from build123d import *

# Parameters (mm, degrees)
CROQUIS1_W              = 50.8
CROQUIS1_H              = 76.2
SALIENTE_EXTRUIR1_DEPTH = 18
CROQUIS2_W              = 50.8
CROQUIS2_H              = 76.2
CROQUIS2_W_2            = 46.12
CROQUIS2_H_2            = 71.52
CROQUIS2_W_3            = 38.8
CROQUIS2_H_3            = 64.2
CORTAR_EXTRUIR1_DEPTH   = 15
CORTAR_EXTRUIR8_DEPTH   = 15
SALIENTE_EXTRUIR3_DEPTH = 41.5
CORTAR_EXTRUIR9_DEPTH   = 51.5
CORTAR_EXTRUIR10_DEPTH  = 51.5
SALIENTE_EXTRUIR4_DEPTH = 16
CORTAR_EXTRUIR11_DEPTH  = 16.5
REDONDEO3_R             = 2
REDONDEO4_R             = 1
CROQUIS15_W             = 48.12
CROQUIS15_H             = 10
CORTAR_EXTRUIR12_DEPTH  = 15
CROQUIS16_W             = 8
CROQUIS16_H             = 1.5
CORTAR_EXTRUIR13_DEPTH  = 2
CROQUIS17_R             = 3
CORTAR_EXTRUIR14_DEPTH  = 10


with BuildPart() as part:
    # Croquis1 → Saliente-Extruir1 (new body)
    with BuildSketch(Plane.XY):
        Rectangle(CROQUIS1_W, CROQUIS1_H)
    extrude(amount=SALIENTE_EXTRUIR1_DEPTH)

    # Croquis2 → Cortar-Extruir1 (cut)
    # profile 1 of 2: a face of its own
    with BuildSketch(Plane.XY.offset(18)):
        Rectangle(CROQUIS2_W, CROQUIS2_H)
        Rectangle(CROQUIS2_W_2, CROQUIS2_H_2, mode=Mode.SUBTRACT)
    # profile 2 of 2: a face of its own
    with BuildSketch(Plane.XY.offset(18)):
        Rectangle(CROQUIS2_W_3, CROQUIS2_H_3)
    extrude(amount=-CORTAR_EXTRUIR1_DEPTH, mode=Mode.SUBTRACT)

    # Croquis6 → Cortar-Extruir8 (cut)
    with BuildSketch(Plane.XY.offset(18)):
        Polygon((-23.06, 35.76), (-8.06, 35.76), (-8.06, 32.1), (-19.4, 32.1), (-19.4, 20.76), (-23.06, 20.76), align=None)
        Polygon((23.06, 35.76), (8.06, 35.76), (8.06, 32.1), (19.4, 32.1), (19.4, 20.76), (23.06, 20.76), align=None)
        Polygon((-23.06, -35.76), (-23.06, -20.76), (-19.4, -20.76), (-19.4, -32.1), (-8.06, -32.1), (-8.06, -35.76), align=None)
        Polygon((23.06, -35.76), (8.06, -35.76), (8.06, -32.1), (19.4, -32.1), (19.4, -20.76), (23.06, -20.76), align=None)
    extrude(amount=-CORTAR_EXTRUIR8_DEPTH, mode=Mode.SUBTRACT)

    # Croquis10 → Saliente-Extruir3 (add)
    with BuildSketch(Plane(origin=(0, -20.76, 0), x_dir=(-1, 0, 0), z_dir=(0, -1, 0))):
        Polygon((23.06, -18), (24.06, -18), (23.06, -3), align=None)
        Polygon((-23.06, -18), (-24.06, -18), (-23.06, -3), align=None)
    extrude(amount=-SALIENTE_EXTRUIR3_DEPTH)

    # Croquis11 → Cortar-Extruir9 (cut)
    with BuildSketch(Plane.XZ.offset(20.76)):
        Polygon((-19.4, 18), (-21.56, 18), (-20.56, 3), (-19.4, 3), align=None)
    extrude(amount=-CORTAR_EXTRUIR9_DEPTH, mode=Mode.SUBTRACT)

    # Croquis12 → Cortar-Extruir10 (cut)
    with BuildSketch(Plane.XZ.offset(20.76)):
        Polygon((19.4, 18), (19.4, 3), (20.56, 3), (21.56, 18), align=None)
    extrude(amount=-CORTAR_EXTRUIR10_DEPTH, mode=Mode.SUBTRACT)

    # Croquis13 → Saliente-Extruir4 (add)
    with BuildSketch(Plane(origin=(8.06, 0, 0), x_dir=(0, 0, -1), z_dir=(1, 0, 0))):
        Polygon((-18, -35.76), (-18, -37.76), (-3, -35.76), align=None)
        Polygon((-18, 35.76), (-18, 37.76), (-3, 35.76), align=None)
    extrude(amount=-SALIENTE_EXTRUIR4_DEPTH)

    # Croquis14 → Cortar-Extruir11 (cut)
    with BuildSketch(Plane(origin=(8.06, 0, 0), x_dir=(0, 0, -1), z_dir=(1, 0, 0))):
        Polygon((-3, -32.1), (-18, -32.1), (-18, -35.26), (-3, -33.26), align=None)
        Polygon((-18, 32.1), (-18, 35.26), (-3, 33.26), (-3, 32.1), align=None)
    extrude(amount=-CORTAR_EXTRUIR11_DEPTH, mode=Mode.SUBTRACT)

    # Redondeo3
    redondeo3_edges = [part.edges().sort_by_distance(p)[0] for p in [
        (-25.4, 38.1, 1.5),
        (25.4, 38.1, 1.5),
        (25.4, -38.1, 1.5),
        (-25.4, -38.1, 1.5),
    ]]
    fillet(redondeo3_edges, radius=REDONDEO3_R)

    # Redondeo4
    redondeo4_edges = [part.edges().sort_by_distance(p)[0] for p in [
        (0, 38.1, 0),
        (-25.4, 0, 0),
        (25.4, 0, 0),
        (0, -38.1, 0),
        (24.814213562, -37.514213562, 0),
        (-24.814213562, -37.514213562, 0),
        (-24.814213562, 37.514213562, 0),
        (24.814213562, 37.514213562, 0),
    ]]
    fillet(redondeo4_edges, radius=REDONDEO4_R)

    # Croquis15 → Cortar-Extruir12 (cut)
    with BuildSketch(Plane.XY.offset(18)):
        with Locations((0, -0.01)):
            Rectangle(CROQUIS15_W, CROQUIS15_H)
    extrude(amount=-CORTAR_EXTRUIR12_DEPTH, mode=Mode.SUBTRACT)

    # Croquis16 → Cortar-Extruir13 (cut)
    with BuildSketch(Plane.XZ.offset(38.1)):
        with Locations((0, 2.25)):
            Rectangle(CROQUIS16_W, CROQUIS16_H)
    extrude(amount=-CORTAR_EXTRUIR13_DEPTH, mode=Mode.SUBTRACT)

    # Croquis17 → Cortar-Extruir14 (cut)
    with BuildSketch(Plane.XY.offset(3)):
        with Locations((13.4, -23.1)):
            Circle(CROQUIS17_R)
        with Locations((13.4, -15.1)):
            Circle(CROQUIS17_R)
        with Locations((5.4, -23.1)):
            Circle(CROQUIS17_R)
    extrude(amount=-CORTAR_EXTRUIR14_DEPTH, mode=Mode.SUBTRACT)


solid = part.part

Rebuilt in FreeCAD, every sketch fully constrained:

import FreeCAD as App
import Part
import Sketcher
from FreeCAD import Vector


def edges_at(feature, points):
    """Names of the edges that pass closest to the given points."""
    edges = feature.Shape.Edges
    near = lambda p: min(range(len(edges)), key=lambda i: edges[i].distToShape(Part.Vertex(*p))[0])
    return sorted({f"Edge{near(p) + 1}" for p in points})


def add_polygon(sketch, points):
    """Adds a closed chain of lines whose ends are joined by coincident constraints."""
    first, n = sketch.GeometryCount, len(points)
    for a, b in zip(points, points[1:] + points[:1]):
        sketch.addGeometry(Part.LineSegment(App.Vector(*a, 0), App.Vector(*b, 0)), False)
    for i in range(n):
        sketch.addConstraint(Sketcher.Constraint("Coincident", first + i, 2, first + (i + 1) % n, 1))

doc = App.newDocument("Part")
body = doc.addObject("PartDesign::Body", "Body")

# Sketch on XY plane
sketch1 = body.newObject("Sketcher::SketchObject", "Sketch")
sketch1.AttachmentSupport = (doc.getObject("XY_Plane"), [""])
sketch1.MapMode = "FlatFace"
add_polygon(sketch1, [(-25, 38), (-25, -38), (25, -38), (25, 38)])  # lines 0-3
sketch1.addConstraint([
    Sketcher.Constraint("Vertical", 0),
    Sketcher.Constraint("Horizontal", 1),
    Sketcher.Constraint("Vertical", 2),
    Sketcher.Constraint("Horizontal", 3),
    Sketcher.Constraint("Symmetric", 0, 2, 2, 2, -1, 1),
    Sketcher.Constraint("DistanceX", 1, 1, 1, 2, 50.8),
    Sketcher.Constraint("DistanceY", 0, 2, 0, 1, 76.2),
])
pad1 = body.newObject("PartDesign::Pad", "Pad")
pad1.Profile = sketch1
pad1.Length = 18

# Sketch on XY plane
sketch2 = body.newObject("Sketcher::SketchObject", "Sketch001")
sketch2.AttachmentSupport = (doc.getObject("XY_Plane"), [""])
sketch2.MapMode = "FlatFace"
sketch2.AttachmentOffset = App.Placement(Vector(0, 0, 18), App.Rotation())
add_polygon(sketch2, [(-25, 38), (-25, -38), (25, -38), (25, 38)])  # lines 0-3
add_polygon(sketch2, [(23, -36), (-23, -36), (-23, 36), (23, 36)])  # lines 4-7
add_polygon(sketch2, [(-19, 32), (-19, -32), (19, -32), (19, 32)])  # lines 8-11
sketch2.addConstraint([
    Sketcher.Constraint("Vertical", 0),
    Sketcher.Constraint("Horizontal", 1),
    Sketcher.Constraint("Vertical", 2),
    Sketcher.Constraint("Horizontal", 3),
    Sketcher.Constraint("Horizontal", 4),
    Sketcher.Constraint("Vertical", 5),
    Sketcher.Constraint("Horizontal", 6),
    Sketcher.Constraint("Vertical", 7),
    Sketcher.Constraint("Vertical", 8),
    Sketcher.Constraint("Horizontal", 9),
    Sketcher.Constraint("Vertical", 10),
    Sketcher.Constraint("Horizontal", 11),
    Sketcher.Constraint("Symmetric", 0, 2, 2, 2, -1, 1),
    Sketcher.Constraint("Symmetric", 4, 2, 6, 2, -1, 1),
    Sketcher.Constraint("Symmetric", 8, 2, 10, 2, -1, 1),
    Sketcher.Constraint("DistanceX", 1, 1, 1, 2, 50.8),
    Sketcher.Constraint("DistanceX", 9, 1, 9, 2, 38.8),
    Sketcher.Constraint("DistanceY", 0, 2, 0, 1, 76.2),
    Sketcher.Constraint("DistanceY", 8, 2, 8, 1, 64.2),
    Sketcher.Constraint("DistanceX", 4, 2, 4, 1, 46.12),
    Sketcher.Constraint("DistanceY", 5, 1, 5, 2, 71.52),
])
pocket1 = body.newObject("PartDesign::Pocket", "Pocket")
pocket1.Profile = sketch2
pocket1.Length = 15

# Sketch on XY plane
sketch3 = body.newObject("Sketcher::SketchObject", "Sketch002")
sketch3.AttachmentSupport = (doc.getObject("XY_Plane"), [""])
sketch3.MapMode = "FlatFace"
sketch3.AttachmentOffset = App.Placement(Vector(0, 0, 18), App.Rotation())
add_polygon(sketch3, [(-8.1, 35.8), (-23.1, 35.8), (-23.1, 20.8), (-19.4, 20.8), (-19.4, 32.1), (-8.1, 32.1)])  # lines 0-5
add_polygon(sketch3, [(23.1, 35.8), (8.1, 35.8), (8.1, 32.1), (19.4, 32.1), (19.4, 20.8), (23.1, 20.8)])  # lines 6-11
add_polygon(sketch3, [(-23.1, -20.8), (-23.1, -35.8), (-8.1, -35.8), (-8.1, -32.1), (-19.4, -32.1), (-19.4, -20.8)])  # lines 12-17
add_polygon(sketch3, [(8.1, -35.8), (23.1, -35.8), (23.1, -20.8), (19.4, -20.8), (19.4, -32.1), (8.1, -32.1)])  # lines 18-23
sketch3.addConstraint([
    Sketcher.Constraint("Horizontal", 0),
    Sketcher.Constraint("Vertical", 1),
    Sketcher.Constraint("Horizontal", 2),
    Sketcher.Constraint("Vertical", 3),
    Sketcher.Constraint("Horizontal", 4),
    Sketcher.Constraint("Vertical", 5),
    Sketcher.Constraint("Horizontal", 6),
    Sketcher.Constraint("Vertical", 7),
    Sketcher.Constraint("Horizontal", 8),
    Sketcher.Constraint("Vertical", 9),
    Sketcher.Constraint("Horizontal", 10),
    Sketcher.Constraint("Vertical", 11),
    Sketcher.Constraint("Vertical", 12),
    Sketcher.Constraint("Horizontal", 13),
    Sketcher.Constraint("Vertical", 14),
    Sketcher.Constraint("Horizontal", 15),
    Sketcher.Constraint("Vertical", 16),
    Sketcher.Constraint("Horizontal", 17),
    Sketcher.Constraint("Horizontal", 18),
    Sketcher.Constraint("Vertical", 19),
    Sketcher.Constraint("Horizontal", 20),
    Sketcher.Constraint("Vertical", 21),
    Sketcher.Constraint("Horizontal", 22),
    Sketcher.Constraint("Vertical", 23),
    Sketcher.Constraint("Symmetric", 11, 2, 12, 2, -1, 1),
    Sketcher.Constraint("Symmetric", 7, 2, 14, 2, -1, 1),
    Sketcher.Constraint("Symmetric", 9, 2, 16, 2, -1, 1),
    Sketcher.Constraint("Symmetric", 0, 2, 18, 2, -1, 1),
    Sketcher.Constraint("Symmetric", 2, 2, 20, 2, -1, 1),
    Sketcher.Constraint("Symmetric", 4, 2, 22, 2, -1, 1),
    Sketcher.Constraint("Symmetric", 5, 2, 6, 2, -2),
    Sketcher.Constraint("Symmetric", 3, 2, 8, 2, -2),
    Sketcher.Constraint("Symmetric", 1, 2, 10, 2, -2),
    Sketcher.Constraint("Equal", 18, 1),
    Sketcher.Constraint("Equal", 22, 3),
    Sketcher.Constraint("DistanceX", 0, 2, 0, 1, 15.0),
    Sketcher.Constraint("DistanceX", 2, 1, 2, 2, 3.66),
    Sketcher.Constraint("DistanceX", 2, 2, -1, 1, 19.4),
    Sketcher.Constraint("DistanceY", -1, 1, 3, 2, 32.1),
])
pocket2 = body.newObject("PartDesign::Pocket", "Pocket001")
pocket2.Profile = sketch3
pocket2.Length = 15

# Sketch on XZ plane
sketch4 = body.newObject("Sketcher::SketchObject", "Sketch003")
sketch4.AttachmentSupport = (doc.getObject("XZ_Plane"), [""])
sketch4.MapMode = "FlatFace"
sketch4.AttachmentOffset = App.Placement(Vector(0, 0, 20.76), App.Rotation())
add_polygon(sketch4, [(-23.1, 18), (-24.1, 18), (-23.1, 3)])  # lines 0-2
add_polygon(sketch4, [(24.1, 18), (23.1, 18), (23.1, 3)])  # lines 3-5
sketch4.addConstraint([
    Sketcher.Constraint("Horizontal", 0),
    Sketcher.Constraint("Vertical", 2),
    Sketcher.Constraint("Horizontal", 3),
    Sketcher.Constraint("Vertical", 4),
    Sketcher.Constraint("Symmetric", 2, 2, 3, 2, -2),
    Sketcher.Constraint("Horizontal", 1, 2, 4, 2),
    Sketcher.Constraint("Equal", 0, 3),
    Sketcher.Constraint("DistanceX", 0, 2, 0, 1, 1.0),
    Sketcher.Constraint("DistanceY", 2, 1, 2, 2, 15.0),
    Sketcher.Constraint("DistanceY", -1, 1, 0, 2, 18.0),
    Sketcher.Constraint("DistanceX", 0, 2, -1, 1, 24.06),
])
pad2 = body.newObject("PartDesign::Pad", "Pad001")
pad2.Profile = sketch4
pad2.Length = 41.5
pad2.Reversed = True

# Sketch on XZ plane
sketch5 = body.newObject("Sketcher::SketchObject", "Sketch004")
sketch5.AttachmentSupport = (doc.getObject("XZ_Plane"), [""])
sketch5.MapMode = "FlatFace"
sketch5.AttachmentOffset = App.Placement(Vector(0, 0, 20.76), App.Rotation())
add_polygon(sketch5, [(-19.4, 18), (-21.6, 18), (-20.6, 3), (-19.4, 3)])  # lines 0-3
sketch5.addConstraint([
    Sketcher.Constraint("Horizontal", 0),
    Sketcher.Constraint("Horizontal", 2),
    Sketcher.Constraint("Vertical", 3),
    Sketcher.Constraint("DistanceY", 3, 1, 3, 2, 15.0),
    Sketcher.Constraint("DistanceY", -1, 1, 0, 2, 18.0),
    Sketcher.Constraint("DistanceX", 0, 2, 1, 2, 1.0),
    Sketcher.Constraint("DistanceX", 0, 2, 0, 1, 2.16),
    Sketcher.Constraint("DistanceX", 2, 2, -1, 1, 19.4),
])
pocket3 = body.newObject("PartDesign::Pocket", "Pocket002")
pocket3.Profile = sketch5
pocket3.Length = 51.5

# Sketch on XZ plane
sketch6 = body.newObject("Sketcher::SketchObject", "Sketch005")
sketch6.AttachmentSupport = (doc.getObject("XZ_Plane"), [""])
sketch6.MapMode = "FlatFace"
sketch6.AttachmentOffset = App.Placement(Vector(0, 0, 20.76), App.Rotation())
add_polygon(sketch6, [(19.4, 18), (19.4, 3), (20.6, 3), (21.6, 18)])  # lines 0-3
sketch6.addConstraint([
    Sketcher.Constraint("Vertical", 0),
    Sketcher.Constraint("Horizontal", 1),
    Sketcher.Constraint("Horizontal", 3),
    Sketcher.Constraint("DistanceY", 0, 2, 0, 1, 15.0),
    Sketcher.Constraint("DistanceY", -1, 1, 0, 2, 3.0),
    Sketcher.Constraint("DistanceX", 1, 2, 2, 2, 1.0),
    Sketcher.Constraint("DistanceX", 1, 1, 1, 2, 1.16),
    Sketcher.Constraint("DistanceX", -1, 1, 0, 2, 19.4),
])
pocket4 = body.newObject("PartDesign::Pocket", "Pocket003")
pocket4.Profile = sketch6
pocket4.Length = 51.5

# Sketch on YZ plane
sketch7 = body.newObject("Sketcher::SketchObject", "Sketch006")
sketch7.AttachmentSupport = (doc.getObject("YZ_Plane"), [""])
sketch7.MapMode = "FlatFace"
sketch7.AttachmentOffset = App.Placement(Vector(0, 0, 8.06), App.Rotation())
add_polygon(sketch7, [(-35.8, 18), (-37.8, 18), (-35.8, 3)])  # lines 0-2
add_polygon(sketch7, [(37.8, 18), (35.8, 18), (35.8, 3)])  # lines 3-5
sketch7.addConstraint([
    Sketcher.Constraint("Horizontal", 0),
    Sketcher.Constraint("Vertical", 2),
    Sketcher.Constraint("Horizontal", 3),
    Sketcher.Constraint("Vertical", 4),
    Sketcher.Constraint("Symmetric", 2, 2, 3, 2, -2),
    Sketcher.Constraint("Horizontal", 1, 2, 4, 2),
    Sketcher.Constraint("Equal", 0, 3),
    Sketcher.Constraint("DistanceX", 0, 2, 0, 1, 2.0),
    Sketcher.Constraint("DistanceY", 2, 1, 2, 2, 15.0),
    Sketcher.Constraint("DistanceY", -1, 1, 0, 2, 18.0),
    Sketcher.Constraint("DistanceX", 0, 2, -1, 1, 37.76),
])
pad3 = body.newObject("PartDesign::Pad", "Pad002")
pad3.Profile = sketch7
pad3.Length = 16
pad3.Reversed = True

# Sketch on YZ plane
sketch8 = body.newObject("Sketcher::SketchObject", "Sketch007")
sketch8.AttachmentSupport = (doc.getObject("YZ_Plane"), [""])
sketch8.MapMode = "FlatFace"
sketch8.AttachmentOffset = App.Placement(Vector(0, 0, 8.06), App.Rotation())
add_polygon(sketch8, [(-32.1, 3), (-32.1, 18), (-35.3, 18), (-33.3, 3)])  # lines 0-3
add_polygon(sketch8, [(35.3, 18), (32.1, 18), (32.1, 3), (33.3, 3)])  # lines 4-7
sketch8.addConstraint([
    Sketcher.Constraint("Vertical", 0),
    Sketcher.Constraint("Horizontal", 1),
    Sketcher.Constraint("Horizontal", 3),
    Sketcher.Constraint("Horizontal", 4),
    Sketcher.Constraint("Vertical", 5),
    Sketcher.Constraint("Horizontal", 6),
    Sketcher.Constraint("Symmetric", 0, 2, 4, 2, -2),
    Sketcher.Constraint("Symmetric", 2, 2, 6, 2, -2),
    Sketcher.Constraint("Equal", 1, 4),
    Sketcher.Constraint("DistanceY", 0, 1, 0, 2, 15.0),
    Sketcher.Constraint("DistanceY", -1, 1, 0, 2, 18.0),
    Sketcher.Constraint("DistanceX", 1, 2, 2, 2, 2.0),
    Sketcher.Constraint("DistanceX", 1, 2, 1, 1, 3.16),
    Sketcher.Constraint("DistanceX", 0, 2, -1, 1, 32.1),
])
pocket5 = body.newObject("PartDesign::Pocket", "Pocket004")
pocket5.Profile = sketch8
pocket5.Length = 16.5
doc.recompute()

fillet = body.newObject("PartDesign::Fillet", "Fillet")
fillet.Base = (pocket5, edges_at(pocket5, [
    (-25.4, 38.1, 1.5),
    (25.4, 38.1, 1.5),
    (25.4, -38.1, 1.5),
    (-25.4, -38.1, 1.5),
]))
fillet.Radius = 2
doc.recompute()

fillet2 = body.newObject("PartDesign::Fillet", "Fillet001")
fillet2.Base = (fillet, edges_at(fillet, [
    (0, 38.1, 0),
    (-25.4, 0, 0),
    (25.4, 0, 0),
    (0, -38.1, 0),
    (24.814, -37.514, 0),
    (-24.814, -37.514, 0),
    (-24.814, 37.514, 0),
    (24.814, 37.514, 0),
]))
fillet2.Radius = 1

# Sketch on XY plane
sketch9 = body.newObject("Sketcher::SketchObject", "Sketch008")
sketch9.AttachmentSupport = (doc.getObject("XY_Plane"), [""])
sketch9.MapMode = "FlatFace"
sketch9.AttachmentOffset = App.Placement(Vector(0, 0, 18), App.Rotation())
add_polygon(sketch9, [(-24, 5), (-24, -5), (24, -5), (24, 5)])  # lines 0-3
sketch9.addConstraint([
    Sketcher.Constraint("Vertical", 0),
    Sketcher.Constraint("Horizontal", 1),
    Sketcher.Constraint("Vertical", 2),
    Sketcher.Constraint("Horizontal", 3),
    Sketcher.Constraint("DistanceY", 0, 2, 0, 1, 10.0),
    Sketcher.Constraint("DistanceX", 1, 1, 1, 2, 48.12),
    Sketcher.Constraint("DistanceX", 0, 2, -1, 1, 24.06),
    Sketcher.Constraint("DistanceY", 0, 2, -1, 1, 5.01),
])
pocket6 = body.newObject("PartDesign::Pocket", "Pocket005")
pocket6.Profile = sketch9
pocket6.Length = 15

# Sketch on XZ plane
sketch10 = body.newObject("Sketcher::SketchObject", "Sketch009")
sketch10.AttachmentSupport = (doc.getObject("XZ_Plane"), [""])
sketch10.MapMode = "FlatFace"
sketch10.AttachmentOffset = App.Placement(Vector(0, 0, 38.1), App.Rotation())
add_polygon(sketch10, [(-4, 3), (-4, 1.5), (4, 1.5), (4, 3)])  # lines 0-3
sketch10.addConstraint([
    Sketcher.Constraint("Vertical", 0),
    Sketcher.Constraint("Horizontal", 1),
    Sketcher.Constraint("Vertical", 2),
    Sketcher.Constraint("Horizontal", 3),
    Sketcher.Constraint("DistanceX", 1, 1, 1, 2, 8.0),
    Sketcher.Constraint("DistanceY", 0, 2, 0, 1, 1.5),
    Sketcher.Constraint("DistanceX", 0, 2, -1, 1, 4.0),
    Sketcher.Constraint("DistanceY", -1, 1, 2, 2, 3.0),
])
pocket7 = body.newObject("PartDesign::Pocket", "Pocket006")
pocket7.Profile = sketch10
pocket7.Length = 2

# Sketch on XY plane
sketch11 = body.newObject("Sketcher::SketchObject", "Sketch010")
sketch11.AttachmentSupport = (doc.getObject("XY_Plane"), [""])
sketch11.MapMode = "FlatFace"
sketch11.AttachmentOffset = App.Placement(Vector(0, 0, 3), App.Rotation())
sketch11.addGeometry([
    Part.Circle(Vector(13.4, -23.1, 0), Vector(0, 0, 1), 3),
    Part.Circle(Vector(13.4, -15.1, 0), Vector(0, 0, 1), 3),
    Part.Circle(Vector(5.4, -23.1, 0), Vector(0, 0, 1), 3),
], False)
sketch11.addConstraint([
    Sketcher.Constraint("Equal", 0, 1),
    Sketcher.Constraint("Equal", 1, 2),
    Sketcher.Constraint("Horizontal", 0, 3, 2, 3),
    Sketcher.Constraint("Vertical", 0, 3, 1, 3),
    Sketcher.Constraint("Diameter", 0, 6.0),
    Sketcher.Constraint("DistanceY", 0, 3, 1, 3, 8.0),
    Sketcher.Constraint("DistanceX", 2, 3, 0, 3, 8.0),
    Sketcher.Constraint("DistanceX", -1, 1, 0, 3, 13.4),
    Sketcher.Constraint("DistanceY", 0, 3, -1, 1, 23.1),
])
pocket8 = body.newObject("PartDesign::Pocket", "Pocket007")
pocket8.Profile = sketch11
pocket8.Length = 10

doc.recompute()
